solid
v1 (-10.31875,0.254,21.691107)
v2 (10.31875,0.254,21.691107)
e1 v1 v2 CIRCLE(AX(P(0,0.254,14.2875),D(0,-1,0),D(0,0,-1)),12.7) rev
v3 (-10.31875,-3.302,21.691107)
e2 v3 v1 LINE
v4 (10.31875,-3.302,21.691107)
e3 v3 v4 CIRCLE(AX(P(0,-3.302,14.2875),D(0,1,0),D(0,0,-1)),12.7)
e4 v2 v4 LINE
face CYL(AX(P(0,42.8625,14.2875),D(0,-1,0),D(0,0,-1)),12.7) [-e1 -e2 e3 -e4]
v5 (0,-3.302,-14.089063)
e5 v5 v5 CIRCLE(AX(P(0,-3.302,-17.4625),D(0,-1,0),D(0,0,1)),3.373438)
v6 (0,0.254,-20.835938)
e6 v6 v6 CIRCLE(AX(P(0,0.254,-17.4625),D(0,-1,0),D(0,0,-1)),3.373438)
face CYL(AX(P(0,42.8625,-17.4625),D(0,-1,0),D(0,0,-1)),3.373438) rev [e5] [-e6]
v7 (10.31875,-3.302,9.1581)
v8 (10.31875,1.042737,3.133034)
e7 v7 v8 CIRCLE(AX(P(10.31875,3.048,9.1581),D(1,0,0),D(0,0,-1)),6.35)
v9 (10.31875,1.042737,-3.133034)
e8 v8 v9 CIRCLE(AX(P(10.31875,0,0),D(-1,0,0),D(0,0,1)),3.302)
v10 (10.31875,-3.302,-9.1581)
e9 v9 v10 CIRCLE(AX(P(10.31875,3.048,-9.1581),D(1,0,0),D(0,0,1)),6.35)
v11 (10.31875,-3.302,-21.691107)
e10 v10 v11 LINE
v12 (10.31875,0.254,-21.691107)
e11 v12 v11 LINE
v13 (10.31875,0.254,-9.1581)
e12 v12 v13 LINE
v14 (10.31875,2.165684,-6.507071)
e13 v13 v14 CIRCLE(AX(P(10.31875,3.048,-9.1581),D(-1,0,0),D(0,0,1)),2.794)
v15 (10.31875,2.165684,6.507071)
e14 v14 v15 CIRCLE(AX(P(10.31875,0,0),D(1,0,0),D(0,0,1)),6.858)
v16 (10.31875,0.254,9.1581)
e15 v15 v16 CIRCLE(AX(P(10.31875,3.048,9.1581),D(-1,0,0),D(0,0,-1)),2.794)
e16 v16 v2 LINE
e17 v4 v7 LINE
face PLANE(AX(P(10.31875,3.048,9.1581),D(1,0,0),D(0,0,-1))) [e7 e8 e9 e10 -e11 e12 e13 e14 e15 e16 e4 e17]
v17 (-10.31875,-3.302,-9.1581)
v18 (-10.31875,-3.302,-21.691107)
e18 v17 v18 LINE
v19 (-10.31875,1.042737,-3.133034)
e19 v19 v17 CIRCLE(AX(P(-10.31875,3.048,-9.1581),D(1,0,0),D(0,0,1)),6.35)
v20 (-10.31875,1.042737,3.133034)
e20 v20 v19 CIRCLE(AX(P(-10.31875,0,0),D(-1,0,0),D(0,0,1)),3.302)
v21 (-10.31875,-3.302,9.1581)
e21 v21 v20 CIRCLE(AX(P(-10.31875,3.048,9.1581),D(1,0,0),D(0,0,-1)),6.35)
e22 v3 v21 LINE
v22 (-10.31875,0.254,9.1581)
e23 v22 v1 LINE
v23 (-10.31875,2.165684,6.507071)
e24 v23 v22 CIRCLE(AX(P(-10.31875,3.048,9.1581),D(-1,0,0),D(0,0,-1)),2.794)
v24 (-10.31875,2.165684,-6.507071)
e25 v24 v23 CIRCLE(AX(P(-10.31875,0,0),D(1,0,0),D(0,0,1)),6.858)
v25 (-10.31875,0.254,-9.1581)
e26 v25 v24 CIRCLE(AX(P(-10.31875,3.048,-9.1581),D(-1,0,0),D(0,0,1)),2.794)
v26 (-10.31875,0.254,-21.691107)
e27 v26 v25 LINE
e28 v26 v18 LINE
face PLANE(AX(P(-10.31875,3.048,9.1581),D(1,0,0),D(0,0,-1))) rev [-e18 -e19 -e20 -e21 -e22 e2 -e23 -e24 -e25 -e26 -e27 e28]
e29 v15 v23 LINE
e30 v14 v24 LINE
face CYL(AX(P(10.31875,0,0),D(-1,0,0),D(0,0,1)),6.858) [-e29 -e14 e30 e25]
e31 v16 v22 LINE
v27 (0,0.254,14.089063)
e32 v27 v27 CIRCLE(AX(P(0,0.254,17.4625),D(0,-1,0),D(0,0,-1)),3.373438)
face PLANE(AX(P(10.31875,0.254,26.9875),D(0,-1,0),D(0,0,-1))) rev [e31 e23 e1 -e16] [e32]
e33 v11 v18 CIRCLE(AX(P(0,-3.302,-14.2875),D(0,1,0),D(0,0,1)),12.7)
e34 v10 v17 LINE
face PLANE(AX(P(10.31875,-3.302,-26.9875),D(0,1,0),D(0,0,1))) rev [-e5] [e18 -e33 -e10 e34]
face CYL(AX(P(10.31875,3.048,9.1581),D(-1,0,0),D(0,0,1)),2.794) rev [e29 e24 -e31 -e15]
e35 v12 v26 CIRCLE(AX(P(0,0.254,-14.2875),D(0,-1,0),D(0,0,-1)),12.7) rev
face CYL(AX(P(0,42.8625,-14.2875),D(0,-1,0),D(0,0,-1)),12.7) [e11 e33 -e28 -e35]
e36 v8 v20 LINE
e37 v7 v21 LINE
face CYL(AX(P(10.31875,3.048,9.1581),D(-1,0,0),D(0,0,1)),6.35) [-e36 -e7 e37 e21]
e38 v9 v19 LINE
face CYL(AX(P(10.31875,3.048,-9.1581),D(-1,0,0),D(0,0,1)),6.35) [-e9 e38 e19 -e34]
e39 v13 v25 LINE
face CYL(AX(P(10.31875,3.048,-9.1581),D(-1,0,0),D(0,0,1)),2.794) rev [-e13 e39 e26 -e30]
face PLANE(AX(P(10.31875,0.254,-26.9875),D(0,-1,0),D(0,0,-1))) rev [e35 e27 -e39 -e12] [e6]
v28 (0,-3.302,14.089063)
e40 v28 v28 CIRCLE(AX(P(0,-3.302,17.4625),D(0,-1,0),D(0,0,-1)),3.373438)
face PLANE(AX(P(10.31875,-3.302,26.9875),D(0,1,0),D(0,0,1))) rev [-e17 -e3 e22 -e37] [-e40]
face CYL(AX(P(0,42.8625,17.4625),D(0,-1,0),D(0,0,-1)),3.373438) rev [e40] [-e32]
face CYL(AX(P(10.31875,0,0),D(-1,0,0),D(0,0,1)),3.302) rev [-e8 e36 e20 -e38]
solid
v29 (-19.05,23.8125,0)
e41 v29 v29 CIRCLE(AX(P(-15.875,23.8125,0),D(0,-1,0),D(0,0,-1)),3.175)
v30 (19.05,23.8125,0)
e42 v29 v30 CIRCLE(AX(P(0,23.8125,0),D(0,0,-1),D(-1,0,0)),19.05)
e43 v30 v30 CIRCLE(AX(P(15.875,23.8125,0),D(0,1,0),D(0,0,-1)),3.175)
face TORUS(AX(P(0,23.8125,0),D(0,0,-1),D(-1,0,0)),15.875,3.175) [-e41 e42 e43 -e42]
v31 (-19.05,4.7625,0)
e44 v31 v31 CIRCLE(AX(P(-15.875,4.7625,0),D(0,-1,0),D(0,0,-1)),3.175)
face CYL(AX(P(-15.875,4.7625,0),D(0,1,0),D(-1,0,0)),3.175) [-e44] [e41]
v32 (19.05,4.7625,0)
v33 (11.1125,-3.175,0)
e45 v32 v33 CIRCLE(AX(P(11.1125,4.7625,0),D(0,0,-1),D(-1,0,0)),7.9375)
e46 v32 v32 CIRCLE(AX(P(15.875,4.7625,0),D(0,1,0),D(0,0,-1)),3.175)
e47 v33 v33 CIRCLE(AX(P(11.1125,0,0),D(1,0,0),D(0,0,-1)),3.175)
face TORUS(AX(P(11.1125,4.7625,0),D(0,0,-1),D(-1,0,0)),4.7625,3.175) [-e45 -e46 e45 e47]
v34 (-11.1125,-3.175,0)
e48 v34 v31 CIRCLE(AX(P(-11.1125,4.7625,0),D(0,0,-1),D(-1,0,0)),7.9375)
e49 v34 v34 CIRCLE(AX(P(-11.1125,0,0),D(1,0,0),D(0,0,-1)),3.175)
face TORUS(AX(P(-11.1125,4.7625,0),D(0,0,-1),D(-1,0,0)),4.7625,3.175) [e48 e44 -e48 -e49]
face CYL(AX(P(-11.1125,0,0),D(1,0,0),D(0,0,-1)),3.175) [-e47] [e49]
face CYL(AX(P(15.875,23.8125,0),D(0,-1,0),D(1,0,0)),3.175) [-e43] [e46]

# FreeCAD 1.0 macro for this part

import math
import FreeCAD as App
import Part
import Sketcher
from FreeCAD import Vector
Q = App.Units.Quantity

doc = App.newDocument("Part")
params = doc.addObject("Spreadsheet::Sheet", "Params")
for row, (alias, value) in enumerate([
    ("sketch1_diameter", "0.25 in"),
    ("sketch2_radius", "0.1875 in"),
    ("sketch2_radius2", "0.625 in"),
    ("sketch2_height", "0.75 in"),
    ("sketch3_radius", "0.25 in"),
    ("sketch3_radius2", "0.13 in"),
    ("sketch3_radius3", "0.11 in"),
    ("pad1_length", "0.8125 in"),
    ("sketch4_radius", "0.5 in"),
    ("sketch4_diameter", "0.265625 in"),
    ("sketch4_width", "0.8125 in"),
], start=1):
    params.set(f"A{row}", alias)
    params.set(f"B{row}", "=" + value)
    params.setAlias(f"B{row}", alias)

body = doc.addObject("PartDesign::Body", "Body")

# Sketch on YZ plane
sketch1 = body.newObject("Sketcher::SketchObject", "Sketch")
sketch1.AttachmentSupport = (doc.getObject("YZ_Plane"), [""])
sketch1.MapMode = "FlatFace"
sketch1.addGeometry(Part.Circle(Vector(0, 0, 0), Vector(0, 0, 1), 3.2), False)
sketch1.addConstraint([
    Sketcher.Constraint("Coincident", 0, 3, -1, 1),
    Sketcher.Constraint("Diameter", 0, Q("0.25 in")),
])
sketch1.setExpression("Constraints[1]", "Params.sketch1_diameter")

# Sketch on XY plane
sketch2 = body.newObject("Sketcher::SketchObject", "Sketch001")
sketch2.AttachmentSupport = (doc.getObject("XY_Plane"), [""])
sketch2.MapMode = "FlatFace"
sketch2.addGeometry([
    Part.LineSegment(Vector(-15.9, 23.8, 0), Vector(-15.9, 4.8, 0)),  # 0
    Part.ArcOfCircle(Part.Circle(Vector(-11.1, 4.8, 0), Vector(0, 0, 1), 4.8), math.radians(-180), math.radians(-90)),  # 1
    Part.LineSegment(Vector(-11.1, 0, 0), Vector(11.1, 0, 0)),  # 2
    Part.ArcOfCircle(Part.Circle(Vector(11.1, 4.8, 0), Vector(0, 0, 1), 4.8), math.radians(-90), math.radians(0)),  # 3
    Part.LineSegment(Vector(15.9, 4.8, 0), Vector(15.9, 23.8, 0)),  # 4
    Part.ArcOfCircle(Part.Circle(Vector(0, 23.8, 0), Vector(0, 0, 1), 15.9), math.radians(0), math.radians(180)),  # 5
], False)
sketch2.addConstraint([
    Sketcher.Constraint("Tangent", 0, 2, 1, 1),
    Sketcher.Constraint("Tangent", 1, 2, 2, 1),
    Sketcher.Constraint("Tangent", 2, 2, 3, 1),
    Sketcher.Constraint("Tangent", 3, 2, 4, 1),
    Sketcher.Constraint("Tangent", 4, 2, 5, 1),
    Sketcher.Constraint("Tangent", 5, 2, 0, 1),
    Sketcher.Constraint("Vertical", 0),
    Sketcher.Constraint("Horizontal", 2),
    Sketcher.Constraint("Vertical", 4),
    Sketcher.Constraint("Equal", 1, 3),
    Sketcher.Constraint("Symmetric", 1, 2, 2, 2, -1, 1),
    Sketcher.Constraint("Radius", 1, Q("0.1875 in")),
    Sketcher.Constraint("Radius", 5, Q("0.625 in")),
    Sketcher.Constraint("DistanceY", 0, 2, 0, 1, Q("0.75 in")),
])
sketch2.setExpression("Constraints[11]", "Params.sketch2_radius")
sketch2.setExpression("Constraints[12]", "Params.sketch2_radius2")
sketch2.setExpression("Constraints[13]", "Params.sketch2_height")
doc.recompute()

additivepipe = body.newObject("PartDesign::AdditivePipe", "AdditivePipe")
additivepipe.Profile = sketch1
additivepipe.Spine = (sketch2, ["Edge1", "Edge2", "Edge3", "Edge4", "Edge5", "Edge6"])
body2 = doc.addObject("PartDesign::Body", "Body001")

# Sketch on YZ plane
sketch3 = body2.newObject("Sketcher::SketchObject", "Sketch002")
sketch3.AttachmentSupport = (doc.getObject("YZ_Plane001"), [""])
sketch3.MapMode = "FlatFace"
sketch3.addGeometry([
    Part.LineSegment(Vector(0.3, 27, 0), Vector(-3.3, 27, 0)),  # 0
    Part.LineSegment(Vector(-3.3, 27, 0), Vector(-3.3, 9.2, 0)),  # 1
    Part.ArcOfCircle(Part.Circle(Vector(3, 9.2, 0), Vector(0, 0, 1), 6.3), math.radians(180), math.radians(252)),  # 2
    Part.ArcOfCircle(Part.Circle(Vector(0, 0, 0), Vector(0, 0, 1), 3.3), math.radians(-72), math.radians(72)),  # 3
    Part.ArcOfCircle(Part.Circle(Vector(3, -9.2, 0), Vector(0, 0, 1), 6.3), math.radians(108), math.radians(180)),  # 4
    Part.LineSegment(Vector(-3.3, -9.2, 0), Vector(-3.3, -27, 0)),  # 5
    Part.LineSegment(Vector(-3.3, -27, 0), Vector(0.3, -27, 0)),  # 6
    Part.LineSegment(Vector(0.3, -27, 0), Vector(0.3, -9.2, 0)),  # 7
    Part.ArcOfCircle(Part.Circle(Vector(3, -9.2, 0), Vector(0, 0, 1), 2.8), math.radians(108), math.radians(180)),  # 8
    Part.ArcOfCircle(Part.Circle(Vector(0, 0, 0), Vector(0, 0, 1), 6.9), math.radians(-72), math.radians(72)),  # 9
    Part.ArcOfCircle(Part.Circle(Vector(3, 9.2, 0), Vector(0, 0, 1), 2.8), math.radians(180), math.radians(252)),  # 10
    Part.LineSegment(Vector(0.3, 9.2, 0), Vector(0.3, 27, 0)),  # 11
], False)
sketch3.addConstraint([
    Sketcher.Constraint("Coincident", 0, 2, 1, 1),
    Sketcher.Constraint("Tangent", 1, 2, 2, 1),
    Sketcher.Constraint("Tangent", 2, 2, 3, 2),
    Sketcher.Constraint("Tangent", 3, 1, 4, 1),
    Sketcher.Constraint("Tangent", 4, 2, 5, 1),
    Sketcher.Constraint("Coincident", 5, 2, 6, 1),
    Sketcher.Constraint("Coincident", 6, 2, 7, 1),
    Sketcher.Constraint("Tangent", 7, 2, 8, 2),
    Sketcher.Constraint("Tangent", 8, 1, 9, 1),
    Sketcher.Constraint("Tangent", 9, 2, 10, 2),
    Sketcher.Constraint("Tangent", 10, 1, 11, 1),
    Sketcher.Constraint("Coincident", 11, 2, 0, 1),
    Sketcher.Constraint("Horizontal", 0),
    Sketcher.Constraint("Vertical", 1),
    Sketcher.Constraint("Vertical", 5),
    Sketcher.Constraint("Horizontal", 6),
    Sketcher.Constraint("Vertical", 7),
    Sketcher.Constraint("Vertical", 11),
    Sketcher.Constraint("Coincident", 3, 3, -1, 1),
    Sketcher.Constraint("Coincident", 9, 3, -1, 1),
    Sketcher.Constraint("Coincident", 8, 3, 4, 3),
    Sketcher.Constraint("Coincident", 10, 3, 2, 3),
    Sketcher.Constraint("Equal", 2, 4),
    Sketcher.Constraint("Symmetric", 0, 2, 5, 2, -1),
    Sketcher.Constraint("Radius", 2, Q("0.25 in")),
    Sketcher.Constraint("Radius", 3, Q("0.13 in")),
    Sketcher.Constraint("Radius", 8, Q("0.11 in")),
    Sketcher.Constraint("DistanceX", -1, 1, 2, 3, Q("0.12 in")),
    Sketcher.Constraint("DistanceY", -1, 1, 0, 2, Q("1.0625 in")),
])
sketch3.setExpression("Constraints[24]", "Params.sketch3_radius")
sketch3.setExpression("Constraints[25]", "Params.sketch3_radius2")
sketch3.setExpression("Constraints[26]", "Params.sketch3_radius3")
pad1 = body2.newObject("PartDesign::Pad", "Pad")
pad1.Profile = sketch3
pad1.setExpression("Length", "Params.pad1_length")
pad1.Midplane = True

# Sketch on XZ plane
sketch4 = body2.newObject("Sketcher::SketchObject", "Sketch003")
sketch4.AttachmentSupport = (doc.getObject("XZ_Plane001"), [""])
sketch4.MapMode = "FlatFace"
sketch4.AttachmentOffset = App.Placement(Vector(0, 0, 0.13 * 25.4), App.Rotation())
sketch4.addGeometry([
    Part.Circle(Vector(0, 17.5, 0), Vector(0, 0, 1), 3.4),  # 0
    Part.Circle(Vector(0, -17.5, 0), Vector(0, 0, 1), 3.4),  # 1
    Part.LineSegment(Vector(-10.3, 27.2, 0), Vector(-10.3, 21.7, 0)),  # 2
    Part.ArcOfCircle(Part.Circle(Vector(0, 14.3, 0), Vector(0, 0, 1), 12.7), math.radians(36), math.radians(144)),  # 3
    Part.LineSegment(Vector(10.3, 21.7, 0), Vector(10.3, 27.2, 0)),  # 4
    Part.LineSegment(Vector(10.3, 27.2, 0), Vector(-10.3, 27.2, 0)),  # 5
    Part.ArcOfCircle(Part.Circle(Vector(0, -14.3, 0), Vector(0, 0, 1), 12.7), math.radians(-144), math.radians(-36)),  # 6
    Part.LineSegment(Vector(-10.3, -21.7, 0), Vector(-10.3, -27.2, 0)),  # 7
    Part.LineSegment(Vector(-10.3, -27.2, 0), Vector(10.3, -27.2, 0)),  # 8
    Part.LineSegment(Vector(10.3, -27.2, 0), Vector(10.3, -21.7, 0)),  # 9
], False)
sketch4.addConstraint([
    Sketcher.Constraint("Coincident", 2, 2, 3, 2),
    Sketcher.Constraint("Coincident", 3, 1, 4, 1),
    Sketcher.Constraint("Coincident", 4, 2, 5, 1),
    Sketcher.Constraint("Coincident", 5, 2, 2, 1),
    Sketcher.Constraint("Coincident", 6, 1, 7, 1),
    Sketcher.Constraint("Coincident", 7, 2, 8, 1),
    Sketcher.Constraint("Coincident", 8, 2, 9, 1),
    Sketcher.Constraint("Coincident", 9, 2, 6, 2),
    Sketcher.Constraint("Vertical", 2),
    Sketcher.Constraint("Vertical", 4),
    Sketcher.Constraint("Horizontal", 5),
    Sketcher.Constraint("Vertical", 7),
    Sketcher.Constraint("Horizontal", 8),
    Sketcher.Constraint("Vertical", 9),
    Sketcher.Constraint("Equal", 0, 1),
    Sketcher.Constraint("Equal", 3, 6),
    Sketcher.Constraint("Symmetric", 0, 3, 1, 3, -1, 1),
    Sketcher.Constraint("Symmetric", 3, 3, 6, 3, -1, 1),
    Sketcher.Constraint("Symmetric", 4, 2, 7, 2, -1, 1),
    Sketcher.Constraint("Symmetric", 2, 2, 3, 1, -2),
    Sketcher.Constraint("PointOnObject", 0, 3, -2),
    Sketcher.Constraint("Horizontal", 6, 1, 9, 2),
    Sketcher.Constraint("Radius", 3, Q("0.5 in")),
    Sketcher.Constraint("Diameter", 0, Q("0.265625 in")),
    Sketcher.Constraint("DistanceX", 5, 2, 5, 1, Q("0.8125 in")),
    Sketcher.Constraint("DistanceY", 1, 3, 3, 3, Q("1.25 in")),
    Sketcher.Constraint("DistanceY", 3, 3, 4, 2, Q("0.51 in")),
    Sketcher.Constraint("DistanceY", -1, 1, 0, 3, Q("0.6875 in")),
])
sketch4.setExpression("Constraints[22]", "Params.sketch4_radius")
sketch4.setExpression("Constraints[23]", "Params.sketch4_diameter")
sketch4.setExpression("Constraints[24]", "Params.sketch4_width")
pocket1 = body2.newObject("PartDesign::Pocket", "Pocket")
pocket1.Profile = sketch4
pocket1.Type = "ThroughAll"

doc.recompute()
